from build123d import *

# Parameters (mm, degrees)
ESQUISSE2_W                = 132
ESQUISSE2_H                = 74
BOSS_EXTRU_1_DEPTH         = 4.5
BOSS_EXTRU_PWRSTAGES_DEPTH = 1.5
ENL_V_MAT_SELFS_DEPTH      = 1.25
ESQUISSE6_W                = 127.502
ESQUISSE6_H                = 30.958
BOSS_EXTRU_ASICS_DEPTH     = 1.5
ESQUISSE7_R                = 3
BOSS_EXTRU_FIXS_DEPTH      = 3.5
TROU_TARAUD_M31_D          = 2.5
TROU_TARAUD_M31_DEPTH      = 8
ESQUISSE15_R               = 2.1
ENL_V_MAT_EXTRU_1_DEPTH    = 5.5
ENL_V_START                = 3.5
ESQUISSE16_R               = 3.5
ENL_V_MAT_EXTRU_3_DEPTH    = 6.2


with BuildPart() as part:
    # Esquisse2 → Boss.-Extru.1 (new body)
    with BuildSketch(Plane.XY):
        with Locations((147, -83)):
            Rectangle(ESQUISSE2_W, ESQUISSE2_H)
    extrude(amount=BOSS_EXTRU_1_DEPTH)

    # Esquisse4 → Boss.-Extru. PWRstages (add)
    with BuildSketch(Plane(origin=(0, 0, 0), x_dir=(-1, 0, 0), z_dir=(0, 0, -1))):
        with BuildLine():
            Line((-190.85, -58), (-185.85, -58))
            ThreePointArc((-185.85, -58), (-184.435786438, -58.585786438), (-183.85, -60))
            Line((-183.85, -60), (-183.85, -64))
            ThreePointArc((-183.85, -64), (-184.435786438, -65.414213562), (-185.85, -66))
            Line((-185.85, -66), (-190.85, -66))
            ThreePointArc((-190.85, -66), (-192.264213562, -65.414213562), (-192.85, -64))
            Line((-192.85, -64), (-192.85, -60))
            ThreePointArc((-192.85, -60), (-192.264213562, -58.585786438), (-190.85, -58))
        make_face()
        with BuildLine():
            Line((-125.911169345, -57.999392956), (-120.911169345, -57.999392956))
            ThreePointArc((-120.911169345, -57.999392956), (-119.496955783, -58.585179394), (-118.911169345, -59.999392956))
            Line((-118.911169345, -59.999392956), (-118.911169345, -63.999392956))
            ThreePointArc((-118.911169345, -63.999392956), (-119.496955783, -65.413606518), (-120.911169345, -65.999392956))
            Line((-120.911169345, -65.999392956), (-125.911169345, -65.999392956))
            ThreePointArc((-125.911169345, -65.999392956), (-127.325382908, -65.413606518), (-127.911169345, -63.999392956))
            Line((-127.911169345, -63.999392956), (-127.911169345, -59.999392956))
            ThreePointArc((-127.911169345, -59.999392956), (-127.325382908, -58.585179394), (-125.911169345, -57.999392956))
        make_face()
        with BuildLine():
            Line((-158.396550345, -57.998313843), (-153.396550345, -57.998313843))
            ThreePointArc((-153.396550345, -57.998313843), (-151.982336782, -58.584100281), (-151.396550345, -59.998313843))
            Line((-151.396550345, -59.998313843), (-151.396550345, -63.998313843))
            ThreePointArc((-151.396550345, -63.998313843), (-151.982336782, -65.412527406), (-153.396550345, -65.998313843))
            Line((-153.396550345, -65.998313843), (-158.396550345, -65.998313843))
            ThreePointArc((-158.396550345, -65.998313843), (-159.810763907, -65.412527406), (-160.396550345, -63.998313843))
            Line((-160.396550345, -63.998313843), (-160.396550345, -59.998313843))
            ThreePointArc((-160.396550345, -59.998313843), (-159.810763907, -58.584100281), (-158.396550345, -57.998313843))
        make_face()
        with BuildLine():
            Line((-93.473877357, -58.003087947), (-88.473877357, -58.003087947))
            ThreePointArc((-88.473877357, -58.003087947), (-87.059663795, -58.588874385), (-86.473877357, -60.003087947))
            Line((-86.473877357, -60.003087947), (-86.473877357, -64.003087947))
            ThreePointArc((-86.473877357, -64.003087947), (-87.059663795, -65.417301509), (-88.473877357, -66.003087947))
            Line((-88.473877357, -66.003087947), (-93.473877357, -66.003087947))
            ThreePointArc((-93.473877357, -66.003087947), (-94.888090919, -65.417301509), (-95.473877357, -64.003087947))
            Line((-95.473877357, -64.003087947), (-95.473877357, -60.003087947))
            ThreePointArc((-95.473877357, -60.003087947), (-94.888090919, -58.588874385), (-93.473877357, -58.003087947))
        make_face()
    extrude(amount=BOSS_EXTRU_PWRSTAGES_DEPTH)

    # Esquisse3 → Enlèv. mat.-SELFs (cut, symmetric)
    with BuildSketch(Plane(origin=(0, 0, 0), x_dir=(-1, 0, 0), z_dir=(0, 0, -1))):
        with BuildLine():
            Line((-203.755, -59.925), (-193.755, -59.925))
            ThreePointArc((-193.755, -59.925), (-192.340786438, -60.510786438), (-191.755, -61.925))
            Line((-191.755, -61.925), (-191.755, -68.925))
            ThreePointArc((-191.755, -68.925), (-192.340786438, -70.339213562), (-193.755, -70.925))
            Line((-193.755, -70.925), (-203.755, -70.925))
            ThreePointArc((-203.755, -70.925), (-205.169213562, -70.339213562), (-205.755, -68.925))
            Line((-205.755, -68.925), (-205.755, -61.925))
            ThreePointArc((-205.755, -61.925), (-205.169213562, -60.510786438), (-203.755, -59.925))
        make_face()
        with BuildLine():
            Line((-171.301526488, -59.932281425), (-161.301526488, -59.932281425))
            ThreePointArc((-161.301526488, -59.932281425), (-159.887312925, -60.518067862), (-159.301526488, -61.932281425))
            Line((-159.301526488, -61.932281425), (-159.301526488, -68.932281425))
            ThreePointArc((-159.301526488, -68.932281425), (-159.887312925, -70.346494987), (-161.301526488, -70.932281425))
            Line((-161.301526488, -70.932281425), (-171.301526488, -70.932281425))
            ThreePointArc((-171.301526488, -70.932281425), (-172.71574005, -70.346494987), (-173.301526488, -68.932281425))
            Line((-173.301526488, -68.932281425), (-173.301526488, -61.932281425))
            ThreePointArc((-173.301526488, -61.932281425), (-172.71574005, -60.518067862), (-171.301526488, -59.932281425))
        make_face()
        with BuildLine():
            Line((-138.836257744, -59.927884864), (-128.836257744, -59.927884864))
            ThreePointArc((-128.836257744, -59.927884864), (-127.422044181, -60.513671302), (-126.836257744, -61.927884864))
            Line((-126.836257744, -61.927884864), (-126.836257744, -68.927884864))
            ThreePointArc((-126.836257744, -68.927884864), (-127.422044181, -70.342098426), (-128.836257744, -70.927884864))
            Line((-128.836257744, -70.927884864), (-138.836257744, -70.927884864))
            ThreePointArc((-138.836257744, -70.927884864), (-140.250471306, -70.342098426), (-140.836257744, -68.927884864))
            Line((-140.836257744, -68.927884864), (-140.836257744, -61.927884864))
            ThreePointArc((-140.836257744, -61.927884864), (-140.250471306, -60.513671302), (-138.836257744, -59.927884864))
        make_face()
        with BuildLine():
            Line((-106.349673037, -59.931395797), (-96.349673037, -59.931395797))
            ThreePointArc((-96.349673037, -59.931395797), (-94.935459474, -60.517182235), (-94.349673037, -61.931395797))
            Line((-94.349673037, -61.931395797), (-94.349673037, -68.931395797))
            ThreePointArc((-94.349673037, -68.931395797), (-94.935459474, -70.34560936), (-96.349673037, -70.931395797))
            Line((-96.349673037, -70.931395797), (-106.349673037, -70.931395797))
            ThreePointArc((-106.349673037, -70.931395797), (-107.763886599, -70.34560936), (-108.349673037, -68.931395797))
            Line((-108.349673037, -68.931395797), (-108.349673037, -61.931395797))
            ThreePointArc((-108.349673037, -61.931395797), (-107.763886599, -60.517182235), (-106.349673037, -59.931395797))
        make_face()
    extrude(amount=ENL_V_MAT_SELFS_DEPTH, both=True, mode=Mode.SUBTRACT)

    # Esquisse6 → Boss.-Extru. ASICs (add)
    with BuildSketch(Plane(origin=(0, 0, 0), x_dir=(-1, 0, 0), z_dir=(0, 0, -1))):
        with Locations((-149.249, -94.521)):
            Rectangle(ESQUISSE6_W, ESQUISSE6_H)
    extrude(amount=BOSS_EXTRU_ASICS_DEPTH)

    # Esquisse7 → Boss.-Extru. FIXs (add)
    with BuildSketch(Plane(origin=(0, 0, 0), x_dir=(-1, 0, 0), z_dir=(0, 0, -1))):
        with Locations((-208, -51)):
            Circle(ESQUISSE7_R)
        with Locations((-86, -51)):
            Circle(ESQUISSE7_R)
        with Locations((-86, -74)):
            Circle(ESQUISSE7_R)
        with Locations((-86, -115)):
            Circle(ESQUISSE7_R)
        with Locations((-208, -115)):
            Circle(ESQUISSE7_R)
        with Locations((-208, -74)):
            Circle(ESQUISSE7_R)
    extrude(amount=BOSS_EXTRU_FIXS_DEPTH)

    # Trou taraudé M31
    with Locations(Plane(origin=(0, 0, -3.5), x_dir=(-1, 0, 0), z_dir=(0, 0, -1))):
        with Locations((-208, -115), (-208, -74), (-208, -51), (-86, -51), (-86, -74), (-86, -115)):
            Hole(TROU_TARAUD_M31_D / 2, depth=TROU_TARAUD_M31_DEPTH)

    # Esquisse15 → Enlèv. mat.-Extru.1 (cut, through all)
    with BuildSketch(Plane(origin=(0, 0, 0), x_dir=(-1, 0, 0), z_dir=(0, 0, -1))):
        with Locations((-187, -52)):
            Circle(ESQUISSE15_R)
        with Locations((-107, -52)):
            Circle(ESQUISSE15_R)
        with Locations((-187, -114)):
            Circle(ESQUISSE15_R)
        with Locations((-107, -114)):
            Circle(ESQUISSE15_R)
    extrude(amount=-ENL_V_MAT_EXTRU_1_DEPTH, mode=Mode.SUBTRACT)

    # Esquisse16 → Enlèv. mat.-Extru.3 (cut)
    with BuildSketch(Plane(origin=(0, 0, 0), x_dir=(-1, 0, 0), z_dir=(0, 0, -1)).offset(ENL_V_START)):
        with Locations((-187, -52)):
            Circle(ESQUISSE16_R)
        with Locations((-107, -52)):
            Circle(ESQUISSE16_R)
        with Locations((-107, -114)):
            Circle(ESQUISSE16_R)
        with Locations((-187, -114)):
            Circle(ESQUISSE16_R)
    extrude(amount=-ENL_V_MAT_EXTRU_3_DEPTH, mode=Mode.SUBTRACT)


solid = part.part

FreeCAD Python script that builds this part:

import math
import FreeCAD as App
import Part
import Sketcher
from FreeCAD import Vector
Q = App.Units.Quantity


def add_polygon(sketch, points):
    """Adds a closed chain of lines whose ends are joined by coincident constraints."""
    first, n = sketch.GeometryCount, len(points)
    for a, b in zip(points, points[1:] + points[:1]):
        sketch.addGeometry(Part.LineSegment(App.Vector(*a, 0), App.Vector(*b, 0)), False)
    for i in range(n):
        sketch.addConstraint(Sketcher.Constraint("Coincident", first + i, 2, first + (i + 1) % n, 1))

doc = App.newDocument("Part")
body = doc.addObject("PartDesign::Body", "Body")

# Sketch on XY plane
sketch1 = body.newObject("Sketcher::SketchObject", "Sketch")
sketch1.AttachmentSupport = (doc.getObject("XY_Plane"), [""])
sketch1.MapMode = "FlatFace"
add_polygon(sketch1, [(81, -46), (81, -120), (213, -120), (213, -46)])  # lines 0-3
sketch1.addConstraint(Sketcher.Constraint("Vertical", 0))
sketch1.addConstraint(Sketcher.Constraint("Horizontal", 1))
sketch1.addConstraint(Sketcher.Constraint("Vertical", 2))
sketch1.addConstraint(Sketcher.Constraint("Horizontal", 3))
sketch1.addConstraint(Sketcher.Constraint("DistanceX", 1, 1, 1, 2, Q("132 mm")))
sketch1.addConstraint(Sketcher.Constraint("DistanceY", 0, 2, 0, 1, Q("74 mm")))
sketch1.addConstraint(Sketcher.Constraint("DistanceX", -1, 1, 0, 2, Q("81 mm")))
sketch1.addConstraint(Sketcher.Constraint("DistanceY", 0, 2, -1, 1, Q("120 mm")))
pad1 = body.newObject("PartDesign::Pad", "Pad")
pad1.Profile = sketch1
pad1.Length = 4.5

# Sketch on XY plane
sketch2 = body.newObject("Sketcher::SketchObject", "Sketch001")
sketch2.AttachmentSupport = (doc.getObject("XY_Plane"), [""])
sketch2.MapMode = "FlatFace"
sketch2.addGeometry(Part.LineSegment(Vector(185.8, -58, 0), Vector(190.8, -58, 0)), False)
sketch2.addGeometry(Part.ArcOfCircle(Part.Circle(Vector(190.8, -60, 0), Vector(0, 0, 1), 2), math.radians(0), math.radians(90)), False)
sketch2.addGeometry(Part.LineSegment(Vector(192.8, -60, 0), Vector(192.8, -64, 0)), False)
sketch2.addGeometry(Part.ArcOfCircle(Part.Circle(Vector(190.8, -64, 0), Vector(0, 0, 1), 2), math.radians(-90), math.radians(0)), False)
sketch2.addGeometry(Part.LineSegment(Vector(190.8, -66, 0), Vector(185.8, -66, 0)), False)
sketch2.addGeometry(Part.ArcOfCircle(Part.Circle(Vector(185.9, -64, 0), Vector(0, 0, 1), 2), math.radians(-180), math.radians(-90)), False)
sketch2.addGeometry(Part.LineSegment(Vector(183.8, -64, 0), Vector(183.8, -60, 0)), False)
sketch2.addGeometry(Part.ArcOfCircle(Part.Circle(Vector(185.9, -60, 0), Vector(0, 0, 1), 2), math.radians(90), math.radians(180)), False)
sketch2.addGeometry(Part.LineSegment(Vector(120.9, -58, 0), Vector(125.9, -58, 0)), False)
sketch2.addGeometry(Part.ArcOfCircle(Part.Circle(Vector(125.9, -60, 0), Vector(0, 0, 1), 2), math.radians(0), math.radians(90)), False)
sketch2.addGeometry(Part.LineSegment(Vector(127.9, -60, 0), Vector(127.9, -64, 0)), False)
sketch2.addGeometry(Part.ArcOfCircle(Part.Circle(Vector(125.9, -64, 0), Vector(0, 0, 1), 2), math.radians(-90), math.radians(0)), False)
sketch2.addGeometry(Part.LineSegment(Vector(125.9, -66, 0), Vector(120.9, -66, 0)), False)
sketch2.addGeometry(Part.ArcOfCircle(Part.Circle(Vector(120.9, -64, 0), Vector(0, 0, 1), 2), math.radians(-180), math.radians(-90)), False)
sketch2.addGeometry(Part.LineSegment(Vector(118.9, -64, 0), Vector(118.9, -60, 0)), False)
sketch2.addGeometry(Part.ArcOfCircle(Part.Circle(Vector(120.9, -60, 0), Vector(0, 0, 1), 2), math.radians(90), math.radians(180)), False)
sketch2.addGeometry(Part.LineSegment(Vector(153.4, -58, 0), Vector(158.4, -58, 0)), False)
sketch2.addGeometry(Part.ArcOfCircle(Part.Circle(Vector(158.4, -60, 0), Vector(0, 0, 1), 2), math.radians(0), math.radians(90)), False)
sketch2.addGeometry(Part.LineSegment(Vector(160.4, -60, 0), Vector(160.4, -64, 0)), False)
sketch2.addGeometry(Part.ArcOfCircle(Part.Circle(Vector(158.4, -64, 0), Vector(0, 0, 1), 2), math.radians(-90), math.radians(0)), False)
sketch2.addGeometry(Part.LineSegment(Vector(158.4, -66, 0), Vector(153.4, -66, 0)), False)
sketch2.addGeometry(Part.ArcOfCircle(Part.Circle(Vector(153.4, -64, 0), Vector(0, 0, 1), 2), math.radians(180), math.radians(270)), False)
sketch2.addGeometry(Part.LineSegment(Vector(151.4, -64, 0), Vector(151.4, -60, 0)), False)
sketch2.addGeometry(Part.ArcOfCircle(Part.Circle(Vector(153.4, -60, 0), Vector(0, 0, 1), 2), math.radians(90), math.radians(180)), False)
sketch2.addGeometry(Part.LineSegment(Vector(88.5, -58, 0), Vector(93.5, -58, 0)), False)
sketch2.addGeometry(Part.ArcOfCircle(Part.Circle(Vector(93.5, -60, 0), Vector(0, 0, 1), 2), math.radians(0), math.radians(90)), False)
sketch2.addGeometry(Part.LineSegment(Vector(95.5, -60, 0), Vector(95.5, -64, 0)), False)
sketch2.addGeometry(Part.ArcOfCircle(Part.Circle(Vector(93.5, -64, 0), Vector(0, 0, 1), 2), math.radians(-90), math.radians(0)), False)
sketch2.addGeometry(Part.LineSegment(Vector(93.5, -66, 0), Vector(88.5, -66, 0)), False)
sketch2.addGeometry(Part.ArcOfCircle(Part.Circle(Vector(88.5, -64, 0), Vector(0, 0, 1), 2), math.radians(-180), math.radians(-90)), False)
sketch2.addGeometry(Part.LineSegment(Vector(86.5, -64, 0), Vector(86.5, -60, 0)), False)
sketch2.addGeometry(Part.ArcOfCircle(Part.Circle(Vector(88.5, -60, 0), Vector(0, 0, 1), 2), math.radians(90), math.radians(180)), False)
sketch2.addConstraint(Sketcher.Constraint("Tangent", 0, 2, 1, 2))
sketch2.addConstraint(Sketcher.Constraint("Tangent", 1, 1, 2, 1))
sketch2.addConstraint(Sketcher.Constraint("Tangent", 2, 2, 3, 2))
sketch2.addConstraint(Sketcher.Constraint("Tangent", 3, 1, 4, 1))
sketch2.addConstraint(Sketcher.Constraint("Tangent", 4, 2, 5, 2))
sketch2.addConstraint(Sketcher.Constraint("Tangent", 5, 1, 6, 1))
sketch2.addConstraint(Sketcher.Constraint("Tangent", 6, 2, 7, 2))
sketch2.addConstraint(Sketcher.Constraint("Tangent", 7, 1, 0, 1))
sketch2.addConstraint(Sketcher.Constraint("Tangent", 8, 2, 9, 2))
sketch2.addConstraint(Sketcher.Constraint("Tangent", 9, 1, 10, 1))
sketch2.addConstraint(Sketcher.Constraint("Tangent", 10, 2, 11, 2))
sketch2.addConstraint(Sketcher.Constraint("Tangent", 11, 1, 12, 1))
sketch2.addConstraint(Sketcher.Constraint("Tangent", 12, 2, 13, 2))
sketch2.addConstraint(Sketcher.Constraint("Tangent", 13, 1, 14, 1))
sketch2.addConstraint(Sketcher.Constraint("Tangent", 14, 2, 15, 2))
sketch2.addConstraint(Sketcher.Constraint("Tangent", 15, 1, 8, 1))
sketch2.addConstraint(Sketcher.Constraint("Tangent", 16, 2, 17, 2))
sketch2.addConstraint(Sketcher.Constraint("Tangent", 17, 1, 18, 1))
sketch2.addConstraint(Sketcher.Constraint("Tangent", 18, 2, 19, 2))
sketch2.addConstraint(Sketcher.Constraint("Tangent", 19, 1, 20, 1))
sketch2.addConstraint(Sketcher.Constraint("Tangent", 20, 2, 21, 2))
sketch2.addConstraint(Sketcher.Constraint("Tangent", 21, 1, 22, 1))
sketch2.addConstraint(Sketcher.Constraint("Tangent", 22, 2, 23, 2))
sketch2.addConstraint(Sketcher.Constraint("Tangent", 23, 1, 16, 1))
sketch2.addConstraint(Sketcher.Constraint("Tangent", 24, 2, 25, 2))
sketch2.addConstraint(Sketcher.Constraint("Tangent", 25, 1, 26, 1))
sketch2.addConstraint(Sketcher.Constraint("Tangent", 26, 2, 27, 2))
sketch2.addConstraint(Sketcher.Constraint("Tangent", 27, 1, 28, 1))
sketch2.addConstraint(Sketcher.Constraint("Tangent", 28, 2, 29, 2))
sketch2.addConstraint(Sketcher.Constraint("Tangent", 29, 1, 30, 1))
sketch2.addConstraint(Sketcher.Constraint("Tangent", 30, 2, 31, 2))
sketch2.addConstraint(Sketcher.Constraint("Tangent", 31, 1, 24, 1))
sketch2.addConstraint(Sketcher.Constraint("Horizontal", 0))
sketch2.addConstraint(Sketcher.Constraint("Vertical", 2))
sketch2.addConstraint(Sketcher.Constraint("Horizontal", 4))
sketch2.addConstraint(Sketcher.Constraint("Vertical", 6))
sketch2.addConstraint(Sketcher.Constraint("Horizontal", 8))
sketch2.addConstraint(Sketcher.Constraint("Vertical", 10))
sketch2.addConstraint(Sketcher.Constraint("Horizontal", 12))
sketch2.addConstraint(Sketcher.Constraint("Vertical", 14))
sketch2.addConstraint(Sketcher.Constraint("Horizontal", 16))
sketch2.addConstraint(Sketcher.Constraint("Vertical", 18))
sketch2.addConstraint(Sketcher.Constraint("Horizontal", 20))
sketch2.addConstraint(Sketcher.Constraint("Vertical", 22))
sketch2.addConstraint(Sketcher.Constraint("Horizontal", 24))
sketch2.addConstraint(Sketcher.Constraint("Vertical", 26))
sketch2.addConstraint(Sketcher.Constraint("Horizontal", 28))
sketch2.addConstraint(Sketcher.Constraint("Vertical", 30))
sketch2.addConstraint(Sketcher.Constraint("Equal", 1, 3))
sketch2.addConstraint(Sketcher.Constraint("Equal", 3, 5))
sketch2.addConstraint(Sketcher.Constraint("Equal", 5, 7))
sketch2.addConstraint(Sketcher.Constraint("Equal", 7, 9))
sketch2.addConstraint(Sketcher.Constraint("Equal", 9, 11))
sketch2.addConstraint(Sketcher.Constraint("Equal", 11, 13))
sketch2.addConstraint(Sketcher.Constraint("Equal", 13, 15))
sketch2.addConstraint(Sketcher.Constraint("Equal", 15, 17))
sketch2.addConstraint(Sketcher.Constraint("Equal", 17, 19))
sketch2.addConstraint(Sketcher.Constraint("Equal", 19, 21))
sketch2.addConstraint(Sketcher.Constraint("Equal", 21, 23))
sketch2.addConstraint(Sketcher.Constraint("Equal", 23, 25))
sketch2.addConstraint(Sketcher.Constraint("Equal", 25, 27))
sketch2.addConstraint(Sketcher.Constraint("Equal", 27, 29))
sketch2.addConstraint(Sketcher.Constraint("Equal", 29, 31))
sketch2.addConstraint(Sketcher.Constraint("Equal", 4, 8))
sketch2.addConstraint(Sketcher.Constraint("Equal", 12, 16))
sketch2.addConstraint(Sketcher.Constraint("Equal", 20, 24))
sketch2.addConstraint(Sketcher.Constraint("Equal", 6, 10))
sketch2.addConstraint(Sketcher.Constraint("Equal", 14, 18))
sketch2.addConstraint(Sketcher.Constraint("Equal", 22, 26))
sketch2.addConstraint(Sketcher.Constraint("Radius", 1, Q("2 mm")))
sketch2.addConstraint(Sketcher.Constraint("DistanceX", 0, 1, 0, 2, Q("5 mm")))
sketch2.addConstraint(Sketcher.Constraint("DistanceY", 2, 2, 2, 1, Q("4 mm")))
sketch2.addConstraint(Sketcher.Constraint("DistanceY", 1, 3, -1, 1, Q("60 mm")))
sketch2.addConstraint(Sketcher.Constraint("DistanceX", -1, 1, 1, 3, Q("190.85 mm")))
sketch2.addConstraint(Sketcher.Constraint("DistanceX", -1, 1, 9, 3, Q("125.911169 mm")))
sketch2.addConstraint(Sketcher.Constraint("DistanceX", -1, 1, 17, 3, Q("158.39655 mm")))
sketch2.addConstraint(Sketcher.Constraint("DistanceY", 9, 3, 17, 3, Q("0.001079 mm")))
sketch2.addConstraint(Sketcher.Constraint("DistanceX", 25, 3, 15, 3, Q("27.437292 mm")))
sketch2.addConstraint(Sketcher.Constraint("DistanceY", 9, 3, -1, 1, Q("59.999393 mm")))
sketch2.addConstraint(Sketcher.Constraint("DistanceY", 25, 3, -1, 1, Q("60.003088 mm")))
pad2 = body.newObject("PartDesign::Pad", "Pad001")
pad2.Profile = sketch2
pad2.Length = 1.5
pad2.Reversed = True

# Sketch on XY plane
sketch3 = body.newObject("Sketcher::SketchObject", "Sketch002")
sketch3.AttachmentSupport = (doc.getObject("XY_Plane"), [""])
sketch3.MapMode = "FlatFace"
sketch3.addGeometry(Part.LineSegment(Vector(193.8, -59.9, 0), Vector(203.8, -59.9, 0)), False)
sketch3.addGeometry(Part.ArcOfCircle(Part.Circle(Vector(203.8, -61.9, 0), Vector(0, 0, 1), 2), math.radians(0), math.radians(90)), False)
sketch3.addGeometry(Part.LineSegment(Vector(205.8, -61.9, 0), Vector(205.8, -68.9, 0)), False)
sketch3.addGeometry(Part.ArcOfCircle(Part.Circle(Vector(203.8, -68.9, 0), Vector(0, 0, 1), 2), math.radians(-90), math.radians(0)), False)
sketch3.addGeometry(Part.LineSegment(Vector(203.8, -70.9, 0), Vector(193.8, -70.9, 0)), False)
sketch3.addGeometry(Part.ArcOfCircle(Part.Circle(Vector(193.8, -68.9, 0), Vector(0, 0, 1), 2), math.radians(-180), math.radians(-90)), False)
sketch3.addGeometry(Part.LineSegment(Vector(191.8, -68.9, 0), Vector(191.8, -61.9, 0)), False)
sketch3.addGeometry(Part.ArcOfCircle(Part.Circle(Vector(193.8, -61.9, 0), Vector(0, 0, 1), 2), math.radians(90), math.radians(180)), False)
sketch3.addGeometry(Part.LineSegment(Vector(161.3, -59.9, 0), Vector(171.3, -59.9, 0)), False)
sketch3.addGeometry(Part.ArcOfCircle(Part.Circle(Vector(171.3, -61.9, 0), Vector(0, 0, 1), 2), math.radians(0), math.radians(90)), False)
sketch3.addGeometry(Part.LineSegment(Vector(173.3, -61.9, 0), Vector(173.3, -68.9, 0)), False)
sketch3.addGeometry(Part.ArcOfCircle(Part.Circle(Vector(171.3, -68.9, 0), Vector(0, 0, 1), 2), math.radians(-90), math.radians(0)), False)
sketch3.addGeometry(Part.LineSegment(Vector(171.3, -70.9, 0), Vector(161.3, -70.9, 0)), False)
sketch3.addGeometry(Part.ArcOfCircle(Part.Circle(Vector(161.3, -68.9, 0), Vector(0, 0, 1), 2), math.radians(180), math.radians(270)), False)
sketch3.addGeometry(Part.LineSegment(Vector(159.3, -68.9, 0), Vector(159.3, -61.9, 0)), False)
sketch3.addGeometry(Part.ArcOfCircle(Part.Circle(Vector(161.3, -61.9, 0), Vector(0, 0, 1), 2), math.radians(90), math.radians(180)), False)
sketch3.addGeometry(Part.LineSegment(Vector(128.8, -59.9, 0), Vector(138.8, -59.9, 0)), False)
sketch3.addGeometry(Part.ArcOfCircle(Part.Circle(Vector(138.8, -61.9, 0), Vector(0, 0, 1), 2), math.radians(0), math.radians(90)), False)
sketch3.addGeometry(Part.LineSegment(Vector(140.8, -61.9, 0), Vector(140.8, -68.9, 0)), False)
sketch3.addGeometry(Part.ArcOfCircle(Part.Circle(Vector(138.8, -68.9, 0), Vector(0, 0, 1), 2), math.radians(-90), math.radians(0)), False)
sketch3.addGeometry(Part.LineSegment(Vector(138.8, -70.9, 0), Vector(128.8, -70.9, 0)), False)
sketch3.addGeometry(Part.ArcOfCircle(Part.Circle(Vector(128.8, -68.9, 0), Vector(0, 0, 1), 2), math.radians(180), math.radians(270)), False)
sketch3.addGeometry(Part.LineSegment(Vector(126.8, -68.9, 0), Vector(126.8, -61.9, 0)), False)
sketch3.addGeometry(Part.ArcOfCircle(Part.Circle(Vector(128.8, -61.9, 0), Vector(0, 0, 1), 2), math.radians(90), math.radians(180)), False)
sketch3.addGeometry(Part.LineSegment(Vector(96.3, -59.9, 0), Vector(106.3, -59.9, 0)), False)
sketch3.addGeometry(Part.ArcOfCircle(Part.Circle(Vector(106.3, -61.9, 0), Vector(0, 0, 1), 2), math.radians(0), math.radians(90)), False)
sketch3.addGeometry(Part.LineSegment(Vector(108.3, -61.9, 0), Vector(108.3, -68.9, 0)), False)
sketch3.addGeometry(Part.ArcOfCircle(Part.Circle(Vector(106.3, -68.9, 0), Vector(0, 0, 1), 2), math.radians(-90), math.radians(0)), False)
sketch3.addGeometry(Part.LineSegment(Vector(106.3, -70.9, 0), Vector(96.3, -70.9, 0)), False)
sketch3.addGeometry(Part.ArcOfCircle(Part.Circle(Vector(96.3, -68.9, 0), Vector(0, 0, 1), 2), math.radians(180), math.radians(270)), False)
sketch3.addGeometry(Part.LineSegment(Vector(94.3, -68.9, 0), Vector(94.3, -61.9, 0)), False)
sketch3.addGeometry(Part.ArcOfCircle(Part.Circle(Vector(96.3, -61.9, 0), Vector(0, 0, 1), 2), math.radians(90), math.radians(180)), False)
sketch3.addConstraint(Sketcher.Constraint("Tangent", 0, 2, 1, 2))
sketch3.addConstraint(Sketcher.Constraint("Tangent", 1, 1, 2, 1))
sketch3.addConstraint(Sketcher.Constraint("Tangent", 2, 2, 3, 2))
sketch3.addConstraint(Sketcher.Constraint("Tangent", 3, 1, 4, 1))
sketch3.addConstraint(Sketcher.Constraint("Tangent", 4, 2, 5, 2))
sketch3.addConstraint(Sketcher.Constraint("Tangent", 5, 1, 6, 1))
sketch3.addConstraint(Sketcher.Constraint("Tangent", 6, 2, 7, 2))
sketch3.addConstraint(Sketcher.Constraint("Tangent", 7, 1, 0, 1))
sketch3.addConstraint(Sketcher.Constraint("Tangent", 8, 2, 9, 2))
sketch3.addConstraint(Sketcher.Constraint("Tangent", 9, 1, 10, 1))
sketch3.addConstraint(Sketcher.Constraint("Tangent", 10, 2, 11, 2))
sketch3.addConstraint(Sketcher.Constraint("Tangent", 11, 1, 12, 1))
sketch3.addConstraint(Sketcher.Constraint("Tangent", 12, 2, 13, 2))
sketch3.addConstraint(Sketcher.Constraint("Tangent", 13, 1, 14, 1))
sketch3.addConstraint(Sketcher.Constraint("Tangent", 14, 2, 15, 2))
sketch3.addConstraint(Sketcher.Constraint("Tangent", 15, 1, 8, 1))
sketch3.addConstraint(Sketcher.Constraint("Tangent", 16, 2, 17, 2))
sketch3.addConstraint(Sketcher.Constraint("Tangent", 17, 1, 18, 1))
sketch3.addConstraint(Sketcher.Constraint("Tangent", 18, 2, 19, 2))
sketch3.addConstraint(Sketcher.Constraint("Tangent", 19, 1, 20, 1))
sketch3.addConstraint(Sketcher.Constraint("Tangent", 20, 2, 21, 2))
sketch3.addConstraint(Sketcher.Constraint("Tangent", 21, 1, 22, 1))
sketch3.addConstraint(Sketcher.Constraint("Tangent", 22, 2, 23, 2))
sketch3.addConstraint(Sketcher.Constraint("Tangent", 23, 1, 16, 1))
sketch3.addConstraint(Sketcher.Constraint("Tangent", 24, 2, 25, 2))
sketch3.addConstraint(Sketcher.Constraint("Tangent", 25, 1, 26, 1))
sketch3.addConstraint(Sketcher.Constraint("Tangent", 26, 2, 27, 2))
sketch3.addConstraint(Sketcher.Constraint("Tangent", 27, 1, 28, 1))
sketch3.addConstraint(Sketcher.Constraint("Tangent", 28, 2, 29, 2))
sketch3.addConstraint(Sketcher.Constraint("Tangent", 29, 1, 30, 1))
sketch3.addConstraint(Sketcher.Constraint("Tangent", 30, 2, 31, 2))
sketch3.addConstraint(Sketcher.Constraint("Tangent", 31, 1, 24, 1))
sketch3.addConstraint(Sketcher.Constraint("Horizontal", 0))
sketch3.addConstraint(Sketcher.Constraint("Vertical", 2))
sketch3.addConstraint(Sketcher.Constraint("Horizontal", 4))
sketch3.addConstraint(Sketcher.Constraint("Vertical", 6))
sketch3.addConstraint(Sketcher.Constraint("Horizontal", 8))
sketch3.addConstraint(Sketcher.Constraint("Vertical", 10))
sketch3.addConstraint(Sketcher.Constraint("Horizontal", 12))
sketch3.addConstraint(Sketcher.Constraint("Vertical", 14))
sketch3.addConstraint(Sketcher.Constraint("Horizontal", 16))
sketch3.addConstraint(Sketcher.Constraint("Vertical", 18))
sketch3.addConstraint(Sketcher.Constraint("Horizontal", 20))
sketch3.addConstraint(Sketcher.Constraint("Vertical", 22))
sketch3.addConstraint(Sketcher.Constraint("Horizontal", 24))
sketch3.addConstraint(Sketcher.Constraint("Vertical", 26))
sketch3.addConstraint(Sketcher.Constraint("Horizontal", 28))
sketch3.addConstraint(Sketcher.Constraint("Vertical", 30))
sketch3.addConstraint(Sketcher.Constraint("Equal", 1, 3))
sketch3.addConstraint(Sketcher.Constraint("Equal", 3, 5))
sketch3.addConstraint(Sketcher.Constraint("Equal", 5, 7))
sketch3.addConstraint(Sketcher.Constraint("Equal", 7, 9))
sketch3.addConstraint(Sketcher.Constraint("Equal", 9, 11))
sketch3.addConstraint(Sketcher.Constraint("Equal", 11, 13))
sketch3.addConstraint(Sketcher.Constraint("Equal", 13, 15))
sketch3.addConstraint(Sketcher.Constraint("Equal", 15, 17))
sketch3.addConstraint(Sketcher.Constraint("Equal", 17, 19))
sketch3.addConstraint(Sketcher.Constraint("Equal", 19, 21))
sketch3.addConstraint(Sketcher.Constraint("Equal", 21, 23))
sketch3.addConstraint(Sketcher.Constraint("Equal", 23, 25))
sketch3.addConstraint(Sketcher.Constraint("Equal", 25, 27))
sketch3.addConstraint(Sketcher.Constraint("Equal", 27, 29))
sketch3.addConstraint(Sketcher.Constraint("Equal", 29, 31))
sketch3.addConstraint(Sketcher.Constraint("Equal", 4, 8))
sketch3.addConstraint(Sketcher.Constraint("Equal", 12, 16))
sketch3.addConstraint(Sketcher.Constraint("Equal", 20, 24))
sketch3.addConstraint(Sketcher.Constraint("Equal", 6, 10))
sketch3.addConstraint(Sketcher.Constraint("Equal", 14, 18))
sketch3.addConstraint(Sketcher.Constraint("Equal", 22, 26))
sketch3.addConstraint(Sketcher.Constraint("Radius", 1, Q("2 mm")))
sketch3.addConstraint(Sketcher.Constraint("DistanceX", 0, 1, 0, 2, Q("10 mm")))
sketch3.addConstraint(Sketcher.Constraint("DistanceY", 2, 2, 2, 1, Q("7 mm")))
sketch3.addConstraint(Sketcher.Constraint("DistanceX", -1, 1, 1, 3, Q("203.755 mm")))
sketch3.addConstraint(Sketcher.Constraint("DistanceY", 1, 3, -1, 1, Q("61.925 mm")))
sketch3.addConstraint(Sketcher.Constraint("DistanceY", 9, 3, -1, 1, Q("61.932281 mm")))
sketch3.addConstraint(Sketcher.Constraint("DistanceX", 17, 3, 15, 3, Q("22.465269 mm")))
sketch3.addConstraint(Sketcher.Constraint("DistanceY", 25, 3, 23, 3, Q("0.003511 mm")))
sketch3.addConstraint(Sketcher.Constraint("DistanceX", -1, 1, 9, 3, Q("171.301526 mm")))
sketch3.addConstraint(Sketcher.Constraint("DistanceY", 17, 3, -1, 1, Q("61.927885 mm")))
sketch3.addConstraint(Sketcher.Constraint("DistanceX", -1, 1, 25, 3, Q("106.349673 mm")))
pocket1 = body.newObject("PartDesign::Pocket", "Pocket")
pocket1.Profile = sketch3
pocket1.Length = 2.5
pocket1.Midplane = True

# Sketch on XY plane
sketch4 = body.newObject("Sketcher::SketchObject", "Sketch003")
sketch4.AttachmentSupport = (doc.getObject("XY_Plane"), [""])
sketch4.MapMode = "FlatFace"
add_polygon(sketch4, [(213, -79), (213, -110), (85, -110), (85, -79)])  # lines 0-3
sketch4.addConstraint(Sketcher.Constraint("Vertical", 0))
sketch4.addConstraint(Sketcher.Constraint("Horizontal", 1))
sketch4.addConstraint(Sketcher.Constraint("Vertical", 2))
sketch4.addConstraint(Sketcher.Constraint("Horizontal", 3))
sketch4.addConstraint(Sketcher.Constraint("DistanceX", -1, 1, 0, 2, Q("213 mm")))
sketch4.addConstraint(Sketcher.Constraint("DistanceY", 0, 2, -1, 1, Q("110 mm")))
sketch4.addConstraint(Sketcher.Constraint("DistanceX", 1, 2, 1, 1, Q("127.502 mm")))
sketch4.addConstraint(Sketcher.Constraint("DistanceY", 0, 2, 0, 1, Q("30.958 mm")))
pad3 = body.newObject("PartDesign::Pad", "Pad002")
pad3.Profile = sketch4
pad3.Length = 1.5
pad3.Reversed = True

# Sketch on XY plane
sketch5 = body.newObject("Sketcher::SketchObject", "Sketch004")
sketch5.AttachmentSupport = (doc.getObject("XY_Plane"), [""])
sketch5.MapMode = "FlatFace"
sketch5.addGeometry(Part.Circle(Vector(208, -51, 0), Vector(0, 0, 1), 3), False)
sketch5.addGeometry(Part.Circle(Vector(86, -51, 0), Vector(0, 0, 1), 3), False)
sketch5.addGeometry(Part.Circle(Vector(86, -74, 0), Vector(0, 0, 1), 3), False)
sketch5.addGeometry(Part.Circle(Vector(86, -115, 0), Vector(0, 0, 1), 3), False)
sketch5.addGeometry(Part.Circle(Vector(208, -115, 0), Vector(0, 0, 1), 3), False)
sketch5.addGeometry(Part.Circle(Vector(208, -74, 0), Vector(0, 0, 1), 3), False)
sketch5.addConstraint(Sketcher.Constraint("Equal", 0, 1))
sketch5.addConstraint(Sketcher.Constraint("Equal", 1, 2))
sketch5.addConstraint(Sketcher.Constraint("Equal", 2, 3))
sketch5.addConstraint(Sketcher.Constraint("Equal", 3, 4))
sketch5.addConstraint(Sketcher.Constraint("Equal", 4, 5))
sketch5.addConstraint(Sketcher.Constraint("Horizontal", 0, 3, 1, 3))
sketch5.addConstraint(Sketcher.Constraint("Horizontal", 3, 3, 4, 3))
sketch5.addConstraint(Sketcher.Constraint("Horizontal", 2, 3, 5, 3))
sketch5.addConstraint(Sketcher.Constraint("Vertical", 1, 3, 2, 3))
sketch5.addConstraint(Sketcher.Constraint("Vertical", 2, 3, 3, 3))
sketch5.addConstraint(Sketcher.Constraint("Vertical", 0, 3, 4, 3))
sketch5.addConstraint(Sketcher.Constraint("Vertical", 4, 3, 5, 3))
sketch5.addConstraint(Sketcher.Constraint("Diameter", 0, Q("6 mm")))
sketch5.addConstraint(Sketcher.Constraint("DistanceX", -1, 1, 0, 3, Q("208 mm")))
sketch5.addConstraint(Sketcher.Constraint("DistanceY", 0, 3, -1, 1, Q("51 mm")))
sketch5.addConstraint(Sketcher.Constraint("DistanceX", -1, 1, 1, 3, Q("86 mm")))
sketch5.addConstraint(Sketcher.Constraint("DistanceY", 2, 3, -1, 1, Q("74 mm")))
sketch5.addConstraint(Sketcher.Constraint("DistanceY", 3, 3, -1, 1, Q("115 mm")))
pad4 = body.newObject("PartDesign::Pad", "Pad003")
pad4.Profile = sketch5
pad4.Length = 3.5
pad4.Reversed = True

# Sketch on XY plane
sketch6 = body.newObject("Sketcher::SketchObject", "Sketch005")
sketch6.AttachmentSupport = (doc.getObject("XY_Plane"), [""])
sketch6.MapMode = "FlatFace"
sketch6.AttachmentOffset = App.Placement(Vector(0, 0, -3.5), App.Rotation())
sketch6.addGeometry(Part.Circle(Vector(208, -115, 0), Vector(0, 0, 1), 1.2), False)
sketch6.addGeometry(Part.Circle(Vector(208, -74, 0), Vector(0, 0, 1), 1.2), False)
sketch6.addGeometry(Part.Circle(Vector(208, -51, 0), Vector(0, 0, 1), 1.2), False)
sketch6.addGeometry(Part.Circle(Vector(86, -51, 0), Vector(0, 0, 1), 1.2), False)
sketch6.addGeometry(Part.Circle(Vector(86, -74, 0), Vector(0, 0, 1), 1.2), False)
sketch6.addGeometry(Part.Circle(Vector(86, -115, 0), Vector(0, 0, 1), 1.2), False)
sketch6.addConstraint(Sketcher.Constraint("Equal", 0, 1))
sketch6.addConstraint(Sketcher.Constraint("Equal", 1, 2))
sketch6.addConstraint(Sketcher.Constraint("Equal", 2, 3))
sketch6.addConstraint(Sketcher.Constraint("Equal", 3, 4))
sketch6.addConstraint(Sketcher.Constraint("Equal", 4, 5))
sketch6.addConstraint(Sketcher.Constraint("Horizontal", 2, 3, 3, 3))
sketch6.addConstraint(Sketcher.Constraint("Horizontal", 1, 3, 4, 3))
sketch6.addConstraint(Sketcher.Constraint("Horizontal", 0, 3, 5, 3))
sketch6.addConstraint(Sketcher.Constraint("Vertical", 0, 3, 1, 3))
sketch6.addConstraint(Sketcher.Constraint("Vertical", 1, 3, 2, 3))
sketch6.addConstraint(Sketcher.Constraint("Vertical", 3, 3, 4, 3))
sketch6.addConstraint(Sketcher.Constraint("Vertical", 4, 3, 5, 3))
sketch6.addConstraint(Sketcher.Constraint("Diameter", 0, Q("2.5 mm")))
sketch6.addConstraint(Sketcher.Constraint("DistanceX", -1, 1, 0, 3, Q("208 mm")))
sketch6.addConstraint(Sketcher.Constraint("DistanceY", 0, 3, -1, 1, Q("115 mm")))
sketch6.addConstraint(Sketcher.Constraint("DistanceY", 1, 3, -1, 1, Q("74 mm")))
sketch6.addConstraint(Sketcher.Constraint("DistanceY", 2, 3, -1, 1, Q("51 mm")))
sketch6.addConstraint(Sketcher.Constraint("DistanceX", -1, 1, 3, 3, Q("86 mm")))
doc.recompute()
hole = body.newObject("PartDesign::Hole", "Hole")
hole.Profile = sketch6
hole.ThreadType = "None"
hole.Diameter = 2.5
hole.DepthType = "Dimension"
hole.Depth = 8
hole.DrillPoint = "Flat"
hole.Reversed = True

# Sketch on XY plane
sketch7 = body.newObject("Sketcher::SketchObject", "Sketch006")
sketch7.AttachmentSupport = (doc.getObject("XY_Plane"), [""])
sketch7.MapMode = "FlatFace"
sketch7.addGeometry(Part.Circle(Vector(187, -52, 0), Vector(0, 0, 1), 2.1), False)
sketch7.addGeometry(Part.Circle(Vector(107, -52, 0), Vector(0, 0, 1), 2.1), False)
sketch7.addGeometry(Part.Circle(Vector(187, -114, 0), Vector(0, 0, 1), 2.1), False)
sketch7.addGeometry(Part.Circle(Vector(107, -114, 0), Vector(0, 0, 1), 2.1), False)
sketch7.addConstraint(Sketcher.Constraint("Equal", 0, 1))
sketch7.addConstraint(Sketcher.Constraint("Equal", 1, 2))
sketch7.addConstraint(Sketcher.Constraint("Equal", 2, 3))
sketch7.addConstraint(Sketcher.Constraint("Horizontal", 0, 3, 1, 3))
sketch7.addConstraint(Sketcher.Constraint("Horizontal", 2, 3, 3, 3))
sketch7.addConstraint(Sketcher.Constraint("Vertical", 0, 3, 2, 3))
sketch7.addConstraint(Sketcher.Constraint("Vertical", 1, 3, 3, 3))
sketch7.addConstraint(Sketcher.Constraint("Diameter", 0, Q("4.2 mm")))
sketch7.addConstraint(Sketcher.Constraint("DistanceX", -1, 1, 0, 3, Q("187 mm")))
sketch7.addConstraint(Sketcher.Constraint("DistanceY", 0, 3, -1, 1, Q("52 mm")))
sketch7.addConstraint(Sketcher.Constraint("DistanceX", -1, 1, 1, 3, Q("107 mm")))
sketch7.addConstraint(Sketcher.Constraint("DistanceY", 2, 3, -1, 1, Q("114 mm")))
pocket2 = body.newObject("PartDesign::Pocket", "Pocket001")
pocket2.Profile = sketch7
pocket2.Type = "ThroughAll"
pocket2.Reversed = True

# Sketch on XY plane
sketch8 = body.newObject("Sketcher::SketchObject", "Sketch007")
sketch8.AttachmentSupport = (doc.getObject("XY_Plane"), [""])
sketch8.MapMode = "FlatFace"
sketch8.AttachmentOffset = App.Placement(Vector(0, 0, -3.5), App.Rotation())
sketch8.addGeometry(Part.Circle(Vector(187, -52, 0), Vector(0, 0, 1), 3.5), False)
sketch8.addGeometry(Part.Circle(Vector(107, -52, 0), Vector(0, 0, 1), 3.5), False)
sketch8.addGeometry(Part.Circle(Vector(107, -114, 0), Vector(0, 0, 1), 3.5), False)
sketch8.addGeometry(Part.Circle(Vector(187, -114, 0), Vector(0, 0, 1), 3.5), False)
sketch8.addConstraint(Sketcher.Constraint("Equal", 0, 1))
sketch8.addConstraint(Sketcher.Constraint("Equal", 1, 2))
sketch8.addConstraint(Sketcher.Constraint("Equal", 2, 3))
sketch8.addConstraint(Sketcher.Constraint("Horizontal", 0, 3, 1, 3))
sketch8.addConstraint(Sketcher.Constraint("Horizontal", 2, 3, 3, 3))
sketch8.addConstraint(Sketcher.Constraint("Vertical", 1, 3, 2, 3))
sketch8.addConstraint(Sketcher.Constraint("Vertical", 0, 3, 3, 3))
sketch8.addConstraint(Sketcher.Constraint("Diameter", 0, Q("7 mm")))
sketch8.addConstraint(Sketcher.Constraint("DistanceX", -1, 1, 0, 3, Q("187 mm")))
sketch8.addConstraint(Sketcher.Constraint("DistanceY", 0, 3, -1, 1, Q("52 mm")))
sketch8.addConstraint(Sketcher.Constraint("DistanceX", -1, 1, 1, 3, Q("107 mm")))
sketch8.addConstraint(Sketcher.Constraint("DistanceY", 2, 3, -1, 1, Q("114 mm")))
pocket3 = body.newObject("PartDesign::Pocket", "Pocket002")
pocket3.Profile = sketch8
pocket3.Length = 6.2
pocket3.Reversed = True

doc.recompute()
